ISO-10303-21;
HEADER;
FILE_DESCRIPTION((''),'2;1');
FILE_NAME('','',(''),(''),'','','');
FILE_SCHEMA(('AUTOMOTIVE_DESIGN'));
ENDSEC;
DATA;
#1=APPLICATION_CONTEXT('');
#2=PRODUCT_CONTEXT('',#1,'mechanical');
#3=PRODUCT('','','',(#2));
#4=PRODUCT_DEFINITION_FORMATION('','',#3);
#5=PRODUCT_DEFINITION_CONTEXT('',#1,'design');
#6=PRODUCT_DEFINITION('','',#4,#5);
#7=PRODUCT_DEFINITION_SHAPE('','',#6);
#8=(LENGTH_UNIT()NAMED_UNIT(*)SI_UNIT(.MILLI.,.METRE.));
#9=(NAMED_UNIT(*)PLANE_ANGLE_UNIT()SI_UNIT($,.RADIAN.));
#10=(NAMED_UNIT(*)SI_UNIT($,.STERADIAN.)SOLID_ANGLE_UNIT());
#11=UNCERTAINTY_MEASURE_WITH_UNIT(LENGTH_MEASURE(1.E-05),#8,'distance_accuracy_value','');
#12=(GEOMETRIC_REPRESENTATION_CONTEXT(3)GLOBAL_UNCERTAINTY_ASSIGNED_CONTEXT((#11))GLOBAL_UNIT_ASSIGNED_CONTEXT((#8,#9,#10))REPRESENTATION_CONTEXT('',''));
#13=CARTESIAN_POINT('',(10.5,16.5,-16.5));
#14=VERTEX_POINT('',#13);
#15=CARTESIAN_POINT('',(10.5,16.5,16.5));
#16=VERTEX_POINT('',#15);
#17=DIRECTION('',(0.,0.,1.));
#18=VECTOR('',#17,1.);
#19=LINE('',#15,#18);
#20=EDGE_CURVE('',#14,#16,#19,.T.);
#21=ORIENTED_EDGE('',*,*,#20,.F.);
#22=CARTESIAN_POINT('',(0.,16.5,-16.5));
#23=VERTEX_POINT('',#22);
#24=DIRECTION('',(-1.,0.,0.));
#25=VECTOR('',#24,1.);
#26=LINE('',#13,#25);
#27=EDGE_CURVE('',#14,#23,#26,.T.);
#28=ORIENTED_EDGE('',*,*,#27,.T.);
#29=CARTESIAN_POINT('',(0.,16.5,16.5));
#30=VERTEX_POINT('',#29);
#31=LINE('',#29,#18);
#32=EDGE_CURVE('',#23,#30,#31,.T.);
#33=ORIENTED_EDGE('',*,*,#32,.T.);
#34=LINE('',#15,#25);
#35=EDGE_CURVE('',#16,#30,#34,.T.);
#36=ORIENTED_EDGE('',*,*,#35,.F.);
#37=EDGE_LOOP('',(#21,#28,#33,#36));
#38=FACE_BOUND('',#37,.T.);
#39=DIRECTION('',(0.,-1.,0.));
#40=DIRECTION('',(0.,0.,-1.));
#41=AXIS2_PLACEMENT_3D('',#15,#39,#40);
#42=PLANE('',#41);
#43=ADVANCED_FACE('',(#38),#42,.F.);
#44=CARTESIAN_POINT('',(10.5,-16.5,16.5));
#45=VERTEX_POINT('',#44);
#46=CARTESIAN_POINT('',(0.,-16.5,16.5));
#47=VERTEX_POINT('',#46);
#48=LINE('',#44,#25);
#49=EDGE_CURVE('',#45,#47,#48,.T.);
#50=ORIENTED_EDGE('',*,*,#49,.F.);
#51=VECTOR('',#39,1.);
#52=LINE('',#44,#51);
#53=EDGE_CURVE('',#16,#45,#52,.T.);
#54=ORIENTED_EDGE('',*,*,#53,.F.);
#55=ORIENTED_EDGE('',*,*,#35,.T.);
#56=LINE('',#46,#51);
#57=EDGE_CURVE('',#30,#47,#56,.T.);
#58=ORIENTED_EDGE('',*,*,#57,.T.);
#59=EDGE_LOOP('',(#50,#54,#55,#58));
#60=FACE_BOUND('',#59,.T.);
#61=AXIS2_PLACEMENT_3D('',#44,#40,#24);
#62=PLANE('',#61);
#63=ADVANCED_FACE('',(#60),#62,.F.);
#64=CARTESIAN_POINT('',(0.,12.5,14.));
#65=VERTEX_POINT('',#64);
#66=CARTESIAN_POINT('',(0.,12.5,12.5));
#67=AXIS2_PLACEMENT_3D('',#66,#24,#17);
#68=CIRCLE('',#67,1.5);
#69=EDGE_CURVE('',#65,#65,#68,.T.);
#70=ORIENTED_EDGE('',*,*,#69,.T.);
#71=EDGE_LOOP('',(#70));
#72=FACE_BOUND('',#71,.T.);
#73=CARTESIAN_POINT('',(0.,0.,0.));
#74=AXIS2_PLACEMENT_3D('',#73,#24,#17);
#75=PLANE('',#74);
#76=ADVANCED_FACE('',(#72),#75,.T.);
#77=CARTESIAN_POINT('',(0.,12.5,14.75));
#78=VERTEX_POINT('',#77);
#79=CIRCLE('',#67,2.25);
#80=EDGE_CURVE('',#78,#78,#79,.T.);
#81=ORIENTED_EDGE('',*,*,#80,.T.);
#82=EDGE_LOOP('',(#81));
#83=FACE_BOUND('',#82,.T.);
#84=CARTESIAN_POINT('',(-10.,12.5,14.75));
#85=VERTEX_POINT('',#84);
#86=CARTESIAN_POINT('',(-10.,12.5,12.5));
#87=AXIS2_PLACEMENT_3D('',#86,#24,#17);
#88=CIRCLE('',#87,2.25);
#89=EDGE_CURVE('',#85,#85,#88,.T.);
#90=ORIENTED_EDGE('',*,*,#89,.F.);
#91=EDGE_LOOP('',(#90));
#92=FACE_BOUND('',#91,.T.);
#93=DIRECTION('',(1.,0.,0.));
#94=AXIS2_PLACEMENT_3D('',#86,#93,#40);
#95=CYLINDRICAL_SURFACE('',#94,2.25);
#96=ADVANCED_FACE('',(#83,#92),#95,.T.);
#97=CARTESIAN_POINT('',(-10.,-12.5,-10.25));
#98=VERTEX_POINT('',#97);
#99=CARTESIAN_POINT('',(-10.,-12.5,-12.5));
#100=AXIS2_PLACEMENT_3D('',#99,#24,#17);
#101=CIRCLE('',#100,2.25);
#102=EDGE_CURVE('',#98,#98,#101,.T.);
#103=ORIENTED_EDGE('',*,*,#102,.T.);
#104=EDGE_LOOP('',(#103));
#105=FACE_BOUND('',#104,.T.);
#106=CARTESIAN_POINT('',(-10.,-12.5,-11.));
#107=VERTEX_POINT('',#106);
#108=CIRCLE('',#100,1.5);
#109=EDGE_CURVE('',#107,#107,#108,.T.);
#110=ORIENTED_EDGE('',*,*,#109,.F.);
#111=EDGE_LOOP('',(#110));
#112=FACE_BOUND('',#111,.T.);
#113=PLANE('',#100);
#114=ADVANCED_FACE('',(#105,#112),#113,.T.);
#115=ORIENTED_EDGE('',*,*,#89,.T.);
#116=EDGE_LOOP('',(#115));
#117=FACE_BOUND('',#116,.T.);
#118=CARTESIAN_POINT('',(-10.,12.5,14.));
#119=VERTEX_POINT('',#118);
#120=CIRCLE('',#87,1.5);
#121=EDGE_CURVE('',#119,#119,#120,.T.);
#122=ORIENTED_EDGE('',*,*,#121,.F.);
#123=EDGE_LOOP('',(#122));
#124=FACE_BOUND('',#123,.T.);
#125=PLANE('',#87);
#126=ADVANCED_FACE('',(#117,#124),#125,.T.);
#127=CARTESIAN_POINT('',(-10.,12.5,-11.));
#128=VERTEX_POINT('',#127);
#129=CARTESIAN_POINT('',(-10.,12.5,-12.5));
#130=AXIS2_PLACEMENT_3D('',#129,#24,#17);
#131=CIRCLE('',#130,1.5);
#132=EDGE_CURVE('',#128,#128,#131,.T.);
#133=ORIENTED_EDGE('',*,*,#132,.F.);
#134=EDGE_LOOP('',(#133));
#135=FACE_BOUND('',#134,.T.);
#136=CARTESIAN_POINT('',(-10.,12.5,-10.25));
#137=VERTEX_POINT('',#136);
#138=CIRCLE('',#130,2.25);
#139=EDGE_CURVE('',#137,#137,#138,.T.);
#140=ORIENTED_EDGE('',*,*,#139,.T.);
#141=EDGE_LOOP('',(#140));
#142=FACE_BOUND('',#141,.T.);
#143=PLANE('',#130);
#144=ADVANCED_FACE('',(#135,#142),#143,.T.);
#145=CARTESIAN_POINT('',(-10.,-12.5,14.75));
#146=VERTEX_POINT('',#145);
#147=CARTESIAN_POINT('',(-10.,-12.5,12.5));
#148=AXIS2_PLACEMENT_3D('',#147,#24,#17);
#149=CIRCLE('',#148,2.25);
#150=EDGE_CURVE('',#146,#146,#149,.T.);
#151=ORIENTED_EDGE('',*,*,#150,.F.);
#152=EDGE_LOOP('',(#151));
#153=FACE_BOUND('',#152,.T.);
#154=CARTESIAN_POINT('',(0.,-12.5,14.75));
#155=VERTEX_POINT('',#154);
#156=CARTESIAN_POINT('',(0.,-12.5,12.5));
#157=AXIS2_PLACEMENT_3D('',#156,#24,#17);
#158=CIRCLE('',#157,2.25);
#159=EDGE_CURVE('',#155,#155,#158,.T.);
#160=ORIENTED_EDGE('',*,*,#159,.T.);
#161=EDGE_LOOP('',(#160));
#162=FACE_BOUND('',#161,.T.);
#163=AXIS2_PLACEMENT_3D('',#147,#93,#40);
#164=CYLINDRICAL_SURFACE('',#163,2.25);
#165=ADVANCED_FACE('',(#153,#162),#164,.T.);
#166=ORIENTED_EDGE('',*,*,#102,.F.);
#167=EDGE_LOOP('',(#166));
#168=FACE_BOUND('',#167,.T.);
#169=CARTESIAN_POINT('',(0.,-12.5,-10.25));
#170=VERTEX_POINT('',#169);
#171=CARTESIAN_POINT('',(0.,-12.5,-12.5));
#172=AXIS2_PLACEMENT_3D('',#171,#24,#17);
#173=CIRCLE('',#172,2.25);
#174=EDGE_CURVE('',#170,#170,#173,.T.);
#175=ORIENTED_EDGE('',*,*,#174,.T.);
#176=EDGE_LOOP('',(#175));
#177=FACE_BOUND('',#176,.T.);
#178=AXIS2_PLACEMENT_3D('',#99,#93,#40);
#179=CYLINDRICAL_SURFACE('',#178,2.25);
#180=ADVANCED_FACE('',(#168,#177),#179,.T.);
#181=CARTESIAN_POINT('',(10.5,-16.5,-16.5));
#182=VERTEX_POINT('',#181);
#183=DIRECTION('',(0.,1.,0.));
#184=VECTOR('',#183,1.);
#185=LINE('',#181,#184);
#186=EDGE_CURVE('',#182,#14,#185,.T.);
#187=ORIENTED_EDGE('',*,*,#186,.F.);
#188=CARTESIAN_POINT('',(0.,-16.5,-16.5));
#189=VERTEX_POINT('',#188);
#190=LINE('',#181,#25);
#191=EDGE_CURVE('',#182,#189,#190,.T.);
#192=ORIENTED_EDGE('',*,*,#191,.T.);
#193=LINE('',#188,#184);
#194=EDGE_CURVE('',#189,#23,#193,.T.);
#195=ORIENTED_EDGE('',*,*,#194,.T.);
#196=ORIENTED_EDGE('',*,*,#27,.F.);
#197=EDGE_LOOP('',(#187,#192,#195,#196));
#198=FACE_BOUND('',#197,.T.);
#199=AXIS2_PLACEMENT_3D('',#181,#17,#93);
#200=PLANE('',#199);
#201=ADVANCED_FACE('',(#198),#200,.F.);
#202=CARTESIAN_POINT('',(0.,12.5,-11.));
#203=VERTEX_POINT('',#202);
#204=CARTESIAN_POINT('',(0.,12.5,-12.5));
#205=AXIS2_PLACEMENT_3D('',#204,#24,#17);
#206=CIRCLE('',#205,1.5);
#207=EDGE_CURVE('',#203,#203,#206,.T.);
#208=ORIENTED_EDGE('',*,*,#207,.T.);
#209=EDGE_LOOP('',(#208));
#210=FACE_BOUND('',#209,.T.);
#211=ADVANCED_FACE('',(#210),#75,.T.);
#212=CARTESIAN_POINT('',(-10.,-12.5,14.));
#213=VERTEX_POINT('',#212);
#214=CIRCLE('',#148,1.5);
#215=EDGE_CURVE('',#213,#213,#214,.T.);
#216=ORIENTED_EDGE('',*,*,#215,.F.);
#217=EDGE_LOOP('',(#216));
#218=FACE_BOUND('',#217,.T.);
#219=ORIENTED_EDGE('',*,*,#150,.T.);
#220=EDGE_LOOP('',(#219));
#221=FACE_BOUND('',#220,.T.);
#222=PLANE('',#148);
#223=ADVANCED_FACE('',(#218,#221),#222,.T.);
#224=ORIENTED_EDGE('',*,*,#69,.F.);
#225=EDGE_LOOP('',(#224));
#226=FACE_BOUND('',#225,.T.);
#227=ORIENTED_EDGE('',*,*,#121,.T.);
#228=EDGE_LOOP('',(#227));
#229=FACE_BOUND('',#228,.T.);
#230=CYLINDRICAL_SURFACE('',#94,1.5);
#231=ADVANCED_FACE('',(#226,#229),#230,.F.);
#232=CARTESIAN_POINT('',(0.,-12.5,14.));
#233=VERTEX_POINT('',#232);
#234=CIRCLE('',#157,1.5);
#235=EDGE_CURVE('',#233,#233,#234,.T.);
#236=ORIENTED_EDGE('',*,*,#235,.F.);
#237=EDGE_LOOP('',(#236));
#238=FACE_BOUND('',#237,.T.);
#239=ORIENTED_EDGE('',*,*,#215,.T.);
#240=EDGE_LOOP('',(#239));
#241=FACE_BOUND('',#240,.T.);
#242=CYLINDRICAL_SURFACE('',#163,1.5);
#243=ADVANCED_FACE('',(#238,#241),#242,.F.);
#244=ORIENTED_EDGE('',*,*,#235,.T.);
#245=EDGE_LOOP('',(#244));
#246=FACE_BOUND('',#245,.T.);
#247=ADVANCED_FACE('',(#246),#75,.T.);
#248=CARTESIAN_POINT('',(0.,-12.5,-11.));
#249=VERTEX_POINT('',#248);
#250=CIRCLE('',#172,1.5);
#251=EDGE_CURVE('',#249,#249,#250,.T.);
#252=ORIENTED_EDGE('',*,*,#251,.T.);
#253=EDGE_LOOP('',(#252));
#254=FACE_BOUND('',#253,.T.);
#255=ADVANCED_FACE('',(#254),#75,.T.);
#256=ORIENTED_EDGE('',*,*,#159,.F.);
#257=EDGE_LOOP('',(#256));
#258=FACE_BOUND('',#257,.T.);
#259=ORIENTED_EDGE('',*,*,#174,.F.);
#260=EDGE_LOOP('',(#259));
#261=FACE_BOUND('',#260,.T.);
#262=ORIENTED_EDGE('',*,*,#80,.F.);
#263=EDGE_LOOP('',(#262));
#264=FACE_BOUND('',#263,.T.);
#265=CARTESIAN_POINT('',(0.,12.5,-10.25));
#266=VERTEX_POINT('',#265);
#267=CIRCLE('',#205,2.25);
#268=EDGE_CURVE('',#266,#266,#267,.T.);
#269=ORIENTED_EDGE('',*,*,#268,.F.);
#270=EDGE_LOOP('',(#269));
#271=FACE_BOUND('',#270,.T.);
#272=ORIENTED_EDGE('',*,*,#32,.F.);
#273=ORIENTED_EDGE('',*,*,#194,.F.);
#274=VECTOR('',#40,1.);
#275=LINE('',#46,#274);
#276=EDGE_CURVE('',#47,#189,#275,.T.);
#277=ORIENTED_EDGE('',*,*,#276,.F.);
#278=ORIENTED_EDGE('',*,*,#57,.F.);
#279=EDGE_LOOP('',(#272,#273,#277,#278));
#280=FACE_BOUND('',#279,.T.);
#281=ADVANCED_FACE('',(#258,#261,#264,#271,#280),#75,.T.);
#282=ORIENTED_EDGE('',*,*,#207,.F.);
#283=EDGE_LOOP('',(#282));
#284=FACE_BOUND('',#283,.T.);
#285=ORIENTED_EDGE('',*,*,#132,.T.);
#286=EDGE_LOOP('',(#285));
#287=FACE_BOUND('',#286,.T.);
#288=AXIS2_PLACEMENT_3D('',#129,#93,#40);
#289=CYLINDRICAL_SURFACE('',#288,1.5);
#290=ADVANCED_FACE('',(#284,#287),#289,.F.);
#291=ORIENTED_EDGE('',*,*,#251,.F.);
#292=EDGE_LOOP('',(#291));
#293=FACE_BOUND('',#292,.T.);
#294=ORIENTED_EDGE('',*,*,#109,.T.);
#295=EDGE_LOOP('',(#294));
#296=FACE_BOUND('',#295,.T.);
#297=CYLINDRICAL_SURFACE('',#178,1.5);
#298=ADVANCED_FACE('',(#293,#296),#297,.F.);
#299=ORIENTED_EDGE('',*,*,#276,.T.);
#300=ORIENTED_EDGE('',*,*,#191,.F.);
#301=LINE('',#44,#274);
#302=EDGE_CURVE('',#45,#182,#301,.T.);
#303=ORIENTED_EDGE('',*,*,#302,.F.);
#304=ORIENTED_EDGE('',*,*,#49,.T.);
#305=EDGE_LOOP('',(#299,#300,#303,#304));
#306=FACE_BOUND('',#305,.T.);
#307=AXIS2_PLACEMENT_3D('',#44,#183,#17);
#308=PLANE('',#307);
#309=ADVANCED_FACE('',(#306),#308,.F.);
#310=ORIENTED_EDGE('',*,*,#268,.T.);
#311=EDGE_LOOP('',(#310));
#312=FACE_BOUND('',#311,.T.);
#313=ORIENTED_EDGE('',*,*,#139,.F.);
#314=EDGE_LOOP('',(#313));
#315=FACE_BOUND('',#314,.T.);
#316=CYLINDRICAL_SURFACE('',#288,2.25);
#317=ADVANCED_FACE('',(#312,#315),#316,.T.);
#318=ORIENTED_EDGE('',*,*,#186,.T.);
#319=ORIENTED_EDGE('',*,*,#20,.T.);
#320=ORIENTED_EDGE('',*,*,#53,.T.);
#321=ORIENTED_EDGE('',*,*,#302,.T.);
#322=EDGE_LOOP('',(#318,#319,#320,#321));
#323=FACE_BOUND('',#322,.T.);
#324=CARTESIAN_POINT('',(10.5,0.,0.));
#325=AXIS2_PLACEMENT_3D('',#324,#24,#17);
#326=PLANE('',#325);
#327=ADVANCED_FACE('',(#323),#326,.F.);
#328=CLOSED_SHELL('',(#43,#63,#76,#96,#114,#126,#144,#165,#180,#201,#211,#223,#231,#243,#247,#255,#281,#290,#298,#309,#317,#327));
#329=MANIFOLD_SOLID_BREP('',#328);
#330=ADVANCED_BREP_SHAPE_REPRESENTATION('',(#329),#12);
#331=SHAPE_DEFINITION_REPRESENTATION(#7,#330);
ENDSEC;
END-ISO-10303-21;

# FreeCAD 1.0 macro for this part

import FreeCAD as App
import Part
import Sketcher
Q = App.Units.Quantity

doc = App.newDocument("Part")
body = doc.addObject("PartDesign::Body", "Body")

# Sketch on YZ plane
sketch1 = body.newObject("Sketcher::SketchObject", "Sketch")
sketch1.AttachmentSupport = (doc.getObject("YZ_Plane"), [""])
sketch1.MapMode = "FlatFace"
sketch1.addGeometry([
    Part.LineSegment(App.Vector(16.5, 16.5, 0), App.Vector(-16.5, 16.5, 0)),
    Part.LineSegment(App.Vector(-16.5, 16.5, 0), App.Vector(-16.5, -16.5, 0)),
    Part.LineSegment(App.Vector(-16.5, -16.5, 0), App.Vector(16.5, -16.5, 0)),
    Part.LineSegment(App.Vector(16.5, -16.5, 0), App.Vector(16.5, 16.5, 0)),
], False)
sketch1.addConstraint([
    Sketcher.Constraint("Coincident", 0, 2, 1, 1),
    Sketcher.Constraint("Coincident", 1, 2, 2, 1),
    Sketcher.Constraint("Coincident", 2, 2, 3, 1),
    Sketcher.Constraint("Coincident", 3, 2, 0, 1),
    Sketcher.Constraint("Horizontal", 0),
    Sketcher.Constraint("Vertical", 1),
    Sketcher.Constraint("Horizontal", 2),
    Sketcher.Constraint("Vertical", 3),
    Sketcher.Constraint("Symmetric", 0, 2, 2, 2, -1, 1),
    Sketcher.Constraint("Equal", 2, 1),
    Sketcher.Constraint("DistanceX", 0, 2, 0, 1, Q("33 mm")),
])
pad1 = body.newObject("PartDesign::Pad", "Pad")
pad1.Profile = sketch1
pad1.Length = 10.5

# Sketch on YZ plane
sketch2 = body.newObject("Sketcher::SketchObject", "Sketch001")
sketch2.AttachmentSupport = (doc.getObject("YZ_Plane"), [""])
sketch2.MapMode = "FlatFace"
sketch2.addGeometry([
    Part.Circle(App.Vector(12.5, -12.5, 0), App.Vector(0, 0, 1), 2.25),  # 0
    Part.Circle(App.Vector(12.5, -12.5, 0), App.Vector(0, 0, 1), 1.5),  # 1
    Part.Circle(App.Vector(-12.5, -12.5, 0), App.Vector(0, 0, 1), 2.25),  # 2
    Part.Circle(App.Vector(-12.5, -12.5, 0), App.Vector(0, 0, 1), 1.5),  # 3
    Part.Circle(App.Vector(-12.5, 12.5, 0), App.Vector(0, 0, 1), 2.25),  # 4
    Part.Circle(App.Vector(-12.5, 12.5, 0), App.Vector(0, 0, 1), 1.5),  # 5
    Part.Circle(App.Vector(12.5, 12.5, 0), App.Vector(0, 0, 1), 2.25),  # 6
    Part.Circle(App.Vector(12.5, 12.5, 0), App.Vector(0, 0, 1), 1.5),  # 7
], False)
sketch2.addConstraint([
    Sketcher.Constraint("Coincident", 1, 3, 0, 3),
    Sketcher.Constraint("Coincident", 3, 3, 2, 3),
    Sketcher.Constraint("Coincident", 5, 3, 4, 3),
    Sketcher.Constraint("Coincident", 7, 3, 6, 3),
    Sketcher.Constraint("Equal", 0, 2),
    Sketcher.Constraint("Equal", 1, 3),
    Sketcher.Constraint("Equal", 2, 4),
    Sketcher.Constraint("Equal", 3, 5),
    Sketcher.Constraint("Equal", 4, 6),
    Sketcher.Constraint("Equal", 5, 7),
    Sketcher.Constraint("Symmetric", 0, 3, 4, 3, -1, 1),
    Sketcher.Constraint("Symmetric", 2, 3, 6, 3, -1, 1),
    Sketcher.Constraint("Symmetric", 0, 3, 2, 3, -2),
    Sketcher.Constraint("Diameter", 1, Q("3 mm")),
    Sketcher.Constraint("Diameter", 0, Q("4.5 mm")),
    Sketcher.Constraint("DistanceX", 2, 3, 0, 3, Q("25 mm")),
    Sketcher.Constraint("DistanceY", 2, 3, 4, 3, Q("25 mm")),
])
pad2 = body.newObject("PartDesign::Pad", "Pad001")
pad2.Profile = sketch2
pad2.Length = 10
pad2.Reversed = True

doc.recompute()
